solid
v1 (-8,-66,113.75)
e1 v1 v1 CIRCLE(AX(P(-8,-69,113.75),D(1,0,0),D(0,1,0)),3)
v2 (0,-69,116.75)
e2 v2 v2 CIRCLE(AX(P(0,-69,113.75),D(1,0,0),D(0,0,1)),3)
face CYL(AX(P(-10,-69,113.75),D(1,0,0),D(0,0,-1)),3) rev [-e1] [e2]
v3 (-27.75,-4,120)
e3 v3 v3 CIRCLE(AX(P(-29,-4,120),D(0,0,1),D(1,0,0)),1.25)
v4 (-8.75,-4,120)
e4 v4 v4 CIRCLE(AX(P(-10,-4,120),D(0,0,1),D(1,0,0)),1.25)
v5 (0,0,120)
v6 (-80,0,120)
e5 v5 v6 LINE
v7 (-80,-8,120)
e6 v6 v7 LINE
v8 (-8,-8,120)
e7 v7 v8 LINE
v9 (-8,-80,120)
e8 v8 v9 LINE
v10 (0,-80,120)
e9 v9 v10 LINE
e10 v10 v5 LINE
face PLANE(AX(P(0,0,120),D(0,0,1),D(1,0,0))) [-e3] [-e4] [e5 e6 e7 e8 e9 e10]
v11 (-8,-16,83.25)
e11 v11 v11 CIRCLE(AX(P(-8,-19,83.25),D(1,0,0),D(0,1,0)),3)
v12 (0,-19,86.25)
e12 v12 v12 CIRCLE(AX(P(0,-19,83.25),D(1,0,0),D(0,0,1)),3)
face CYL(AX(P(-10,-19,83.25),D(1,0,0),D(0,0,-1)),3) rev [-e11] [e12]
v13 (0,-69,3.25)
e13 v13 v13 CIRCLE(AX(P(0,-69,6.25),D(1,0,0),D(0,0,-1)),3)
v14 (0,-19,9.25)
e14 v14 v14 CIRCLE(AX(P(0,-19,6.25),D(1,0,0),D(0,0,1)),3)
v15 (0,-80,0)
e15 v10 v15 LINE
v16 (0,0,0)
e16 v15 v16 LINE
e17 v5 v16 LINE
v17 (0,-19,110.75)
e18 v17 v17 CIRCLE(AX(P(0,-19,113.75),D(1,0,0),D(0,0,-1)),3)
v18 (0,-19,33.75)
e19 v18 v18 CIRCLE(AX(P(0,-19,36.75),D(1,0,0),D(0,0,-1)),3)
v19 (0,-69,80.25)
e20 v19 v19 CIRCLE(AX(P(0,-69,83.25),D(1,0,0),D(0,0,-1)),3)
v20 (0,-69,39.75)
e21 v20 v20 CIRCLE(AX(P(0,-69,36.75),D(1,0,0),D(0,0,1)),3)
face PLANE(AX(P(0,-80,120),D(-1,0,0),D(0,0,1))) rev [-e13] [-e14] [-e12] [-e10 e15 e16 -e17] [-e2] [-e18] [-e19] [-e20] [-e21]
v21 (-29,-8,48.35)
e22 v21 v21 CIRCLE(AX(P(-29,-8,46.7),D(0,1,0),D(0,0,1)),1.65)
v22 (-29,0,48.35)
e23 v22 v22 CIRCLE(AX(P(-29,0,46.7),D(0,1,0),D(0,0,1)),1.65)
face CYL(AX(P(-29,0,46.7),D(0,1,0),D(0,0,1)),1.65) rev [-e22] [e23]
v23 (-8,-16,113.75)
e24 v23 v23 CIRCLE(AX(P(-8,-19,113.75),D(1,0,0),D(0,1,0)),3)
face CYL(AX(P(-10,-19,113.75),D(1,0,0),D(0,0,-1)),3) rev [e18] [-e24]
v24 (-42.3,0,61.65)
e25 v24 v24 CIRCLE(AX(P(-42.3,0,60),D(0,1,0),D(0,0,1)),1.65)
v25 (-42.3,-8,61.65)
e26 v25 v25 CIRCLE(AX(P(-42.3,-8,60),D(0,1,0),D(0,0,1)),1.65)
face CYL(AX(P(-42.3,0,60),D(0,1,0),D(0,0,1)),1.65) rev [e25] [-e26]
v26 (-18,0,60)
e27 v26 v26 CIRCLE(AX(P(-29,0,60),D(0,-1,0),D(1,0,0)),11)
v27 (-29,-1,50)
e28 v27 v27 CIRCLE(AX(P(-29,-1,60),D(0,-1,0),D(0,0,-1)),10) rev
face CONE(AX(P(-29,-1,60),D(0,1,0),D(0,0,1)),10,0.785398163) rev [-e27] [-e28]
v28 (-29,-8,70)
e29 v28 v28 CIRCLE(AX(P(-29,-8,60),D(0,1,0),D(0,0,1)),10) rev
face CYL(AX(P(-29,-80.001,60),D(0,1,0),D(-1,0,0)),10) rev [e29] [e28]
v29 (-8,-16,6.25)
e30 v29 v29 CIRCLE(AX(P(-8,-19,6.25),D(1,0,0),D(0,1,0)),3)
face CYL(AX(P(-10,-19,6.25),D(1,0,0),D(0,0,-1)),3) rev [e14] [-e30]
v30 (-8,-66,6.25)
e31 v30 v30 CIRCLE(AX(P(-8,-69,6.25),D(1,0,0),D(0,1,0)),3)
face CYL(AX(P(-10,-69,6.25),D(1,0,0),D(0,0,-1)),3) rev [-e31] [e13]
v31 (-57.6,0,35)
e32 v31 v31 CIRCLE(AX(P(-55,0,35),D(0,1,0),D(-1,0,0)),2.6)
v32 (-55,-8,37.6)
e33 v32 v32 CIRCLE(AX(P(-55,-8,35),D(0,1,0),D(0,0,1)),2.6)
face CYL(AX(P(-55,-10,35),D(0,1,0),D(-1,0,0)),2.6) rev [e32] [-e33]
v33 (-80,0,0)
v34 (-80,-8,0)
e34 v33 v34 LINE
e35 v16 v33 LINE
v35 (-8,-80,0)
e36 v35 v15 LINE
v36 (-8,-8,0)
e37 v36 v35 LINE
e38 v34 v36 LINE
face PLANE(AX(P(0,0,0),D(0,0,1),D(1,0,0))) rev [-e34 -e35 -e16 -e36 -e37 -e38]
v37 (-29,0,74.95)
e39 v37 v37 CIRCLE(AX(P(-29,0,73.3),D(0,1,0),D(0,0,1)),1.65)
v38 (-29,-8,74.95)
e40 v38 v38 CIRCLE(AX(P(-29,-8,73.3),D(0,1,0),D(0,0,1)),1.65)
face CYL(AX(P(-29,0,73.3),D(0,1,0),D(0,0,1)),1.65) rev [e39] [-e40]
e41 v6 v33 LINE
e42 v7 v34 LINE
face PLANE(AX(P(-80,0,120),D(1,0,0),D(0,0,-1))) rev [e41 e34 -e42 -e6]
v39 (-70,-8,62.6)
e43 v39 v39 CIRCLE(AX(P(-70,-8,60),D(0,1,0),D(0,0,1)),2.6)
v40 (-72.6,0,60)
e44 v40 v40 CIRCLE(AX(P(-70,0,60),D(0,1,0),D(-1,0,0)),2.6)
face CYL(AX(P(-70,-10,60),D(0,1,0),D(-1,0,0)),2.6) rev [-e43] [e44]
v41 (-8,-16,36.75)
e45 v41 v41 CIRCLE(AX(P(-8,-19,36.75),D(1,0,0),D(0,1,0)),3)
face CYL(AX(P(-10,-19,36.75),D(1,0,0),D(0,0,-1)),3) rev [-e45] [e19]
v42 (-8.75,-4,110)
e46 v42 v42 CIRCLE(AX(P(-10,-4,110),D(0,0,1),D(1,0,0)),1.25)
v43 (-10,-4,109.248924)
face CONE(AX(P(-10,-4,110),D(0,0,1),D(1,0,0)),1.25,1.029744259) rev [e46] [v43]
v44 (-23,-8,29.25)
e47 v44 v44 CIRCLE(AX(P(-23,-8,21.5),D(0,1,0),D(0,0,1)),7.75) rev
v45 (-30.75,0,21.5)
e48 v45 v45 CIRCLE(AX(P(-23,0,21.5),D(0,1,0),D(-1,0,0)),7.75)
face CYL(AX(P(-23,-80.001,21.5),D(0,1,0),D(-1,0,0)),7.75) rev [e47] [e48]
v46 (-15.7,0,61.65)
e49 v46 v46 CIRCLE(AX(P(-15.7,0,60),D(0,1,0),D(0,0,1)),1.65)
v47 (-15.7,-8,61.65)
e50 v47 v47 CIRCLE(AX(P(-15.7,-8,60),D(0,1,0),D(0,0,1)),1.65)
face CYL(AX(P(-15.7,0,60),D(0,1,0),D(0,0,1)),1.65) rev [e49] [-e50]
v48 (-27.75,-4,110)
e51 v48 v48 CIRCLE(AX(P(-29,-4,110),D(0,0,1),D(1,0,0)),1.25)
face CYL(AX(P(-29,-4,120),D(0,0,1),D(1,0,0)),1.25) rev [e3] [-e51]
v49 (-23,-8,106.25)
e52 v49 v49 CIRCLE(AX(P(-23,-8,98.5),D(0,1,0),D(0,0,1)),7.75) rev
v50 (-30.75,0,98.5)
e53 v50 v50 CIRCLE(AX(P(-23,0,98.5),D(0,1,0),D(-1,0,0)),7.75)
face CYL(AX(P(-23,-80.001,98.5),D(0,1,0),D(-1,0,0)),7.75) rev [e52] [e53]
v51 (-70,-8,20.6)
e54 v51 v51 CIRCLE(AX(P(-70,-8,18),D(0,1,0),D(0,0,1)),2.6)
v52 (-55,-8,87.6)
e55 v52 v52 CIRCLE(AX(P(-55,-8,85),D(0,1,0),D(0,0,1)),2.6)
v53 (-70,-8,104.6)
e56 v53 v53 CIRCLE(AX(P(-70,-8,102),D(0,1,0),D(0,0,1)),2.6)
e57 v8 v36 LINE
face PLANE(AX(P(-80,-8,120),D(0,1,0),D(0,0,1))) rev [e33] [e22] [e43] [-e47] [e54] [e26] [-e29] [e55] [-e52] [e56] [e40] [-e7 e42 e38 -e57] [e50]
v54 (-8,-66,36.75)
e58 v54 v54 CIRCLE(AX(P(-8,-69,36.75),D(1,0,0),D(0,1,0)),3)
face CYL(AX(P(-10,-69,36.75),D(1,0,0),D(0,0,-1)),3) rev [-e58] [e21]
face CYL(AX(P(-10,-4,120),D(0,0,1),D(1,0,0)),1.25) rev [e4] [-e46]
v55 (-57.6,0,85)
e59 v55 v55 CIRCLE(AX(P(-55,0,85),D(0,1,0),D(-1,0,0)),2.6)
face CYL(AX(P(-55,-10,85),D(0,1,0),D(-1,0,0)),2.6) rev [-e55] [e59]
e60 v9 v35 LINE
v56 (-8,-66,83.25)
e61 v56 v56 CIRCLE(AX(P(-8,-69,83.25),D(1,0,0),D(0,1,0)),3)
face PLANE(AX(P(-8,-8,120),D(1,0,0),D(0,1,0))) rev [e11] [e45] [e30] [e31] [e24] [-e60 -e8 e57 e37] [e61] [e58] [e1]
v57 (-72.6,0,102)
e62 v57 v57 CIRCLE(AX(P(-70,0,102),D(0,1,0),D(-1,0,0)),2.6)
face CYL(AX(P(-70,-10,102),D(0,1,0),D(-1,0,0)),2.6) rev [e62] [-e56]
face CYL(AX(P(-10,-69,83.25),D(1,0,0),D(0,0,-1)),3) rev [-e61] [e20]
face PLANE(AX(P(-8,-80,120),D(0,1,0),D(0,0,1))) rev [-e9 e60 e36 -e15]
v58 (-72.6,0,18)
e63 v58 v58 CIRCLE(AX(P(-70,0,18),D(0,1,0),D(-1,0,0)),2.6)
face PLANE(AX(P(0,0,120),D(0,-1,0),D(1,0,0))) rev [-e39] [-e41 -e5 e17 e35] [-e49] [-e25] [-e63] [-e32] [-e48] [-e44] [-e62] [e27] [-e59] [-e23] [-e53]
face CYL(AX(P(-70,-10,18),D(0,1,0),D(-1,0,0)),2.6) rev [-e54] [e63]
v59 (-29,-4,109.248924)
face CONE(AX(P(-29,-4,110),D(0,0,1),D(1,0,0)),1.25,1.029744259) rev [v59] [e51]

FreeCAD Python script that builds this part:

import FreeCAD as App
import Part
import Sketcher


def edges_at(feature, points):
    """Names of the edges that pass closest to the given points."""
    edges = feature.Shape.Edges
    near = lambda p: min(range(len(edges)), key=lambda i: edges[i].distToShape(Part.Vertex(*p))[0])
    return sorted({f"Edge{near(p) + 1}" for p in points})


def add_polygon(sketch, points):
    """Adds a closed chain of lines whose ends are joined by coincident constraints."""
    first, n = sketch.GeometryCount, len(points)
    for a, b in zip(points, points[1:] + points[:1]):
        sketch.addGeometry(Part.LineSegment(App.Vector(*a, 0), App.Vector(*b, 0)), False)
    for i in range(n):
        sketch.addConstraint(Sketcher.Constraint("Coincident", first + i, 2, first + (i + 1) % n, 1))

doc = App.newDocument("Part")
body = doc.addObject("PartDesign::Body", "Body")

# Sketch on XY plane
sketch1 = doc.addObject("Sketcher::SketchObject", "Sketch")
body.addObject(sketch1)
sketch1.AttachmentSupport = (doc.XY_Plane, [""])
sketch1.MapMode = "FlatFace"
add_polygon(sketch1, [(0, 0), (-80, 0), (-80, -8), (-8, -8), (-8, -80), (0, -80)])  # lines 0-5
sketch1.addConstraint([
    Sketcher.Constraint("Horizontal", 0),
    Sketcher.Constraint("Vertical", 1),
    Sketcher.Constraint("Horizontal", 2),
    Sketcher.Constraint("Vertical", 3),
    Sketcher.Constraint("Horizontal", 4),
    Sketcher.Constraint("Vertical", 5),
    Sketcher.Constraint("Coincident", 5, 2, -1, 1),
    Sketcher.Constraint("Equal", 4, 1),
    Sketcher.Constraint("Equal", 2, 3),
    Sketcher.Constraint("DistanceX", 0, 2, 0, 1, 80.0),
    Sketcher.Constraint("DistanceX", 2, 1, 2, 2, 72.0),
])
pad1 = doc.addObject("PartDesign::Pad", "Pad")
body.addObject(pad1)
pad1.Profile = sketch1
pad1.Length = 120

# Sketch on XZ plane
sketch2 = doc.addObject("Sketcher::SketchObject", "Sketch001")
body.addObject(sketch2)
sketch2.AttachmentSupport = (doc.XZ_Plane, [""])
sketch2.MapMode = "FlatFace"
sketch2.addGeometry(Part.Circle(App.Vector(-23, 22, 0), App.Vector(0, 0, 1), 8), False)
sketch2.addConstraint([
    Sketcher.Constraint("Diameter", 0, 15.5),
    Sketcher.Constraint("DistanceX", 0, 3, -1, 1, 23.0),
    Sketcher.Constraint("DistanceY", -1, 1, 0, 3, 21.5),
])
pocket1 = doc.addObject("PartDesign::Pocket", "Pocket")
body.addObject(pocket1)
pocket1.Profile = sketch2
pocket1.Type = "UpToFirst"
pocket1.Reversed = True

# Sketch on XZ plane
sketch3 = doc.addObject("Sketcher::SketchObject", "Sketch002")
body.addObject(sketch3)
sketch3.AttachmentSupport = (doc.XZ_Plane, [""])
sketch3.MapMode = "FlatFace"
sketch3.addGeometry(Part.Circle(App.Vector(-23, 98, 0), App.Vector(0, 0, 1), 8), False)
sketch3.addConstraint([
    Sketcher.Constraint("Diameter", 0, 15.5),
    Sketcher.Constraint("DistanceX", 0, 3, -1, 1, 23.0),
    Sketcher.Constraint("DistanceY", -1, 1, 0, 3, 98.5),
])
pocket2 = doc.addObject("PartDesign::Pocket", "Pocket001")
body.addObject(pocket2)
pocket2.Profile = sketch3
pocket2.Type = "UpToFirst"
pocket2.Reversed = True

# Sketch on XZ plane
sketch4 = doc.addObject("Sketcher::SketchObject", "Sketch003")
body.addObject(sketch4)
sketch4.AttachmentSupport = (doc.XZ_Plane, [""])
sketch4.MapMode = "FlatFace"
sketch4.addGeometry(Part.Circle(App.Vector(-29, 60, 0), App.Vector(0, 0, 1), 10), False)
sketch4.addConstraint([
    Sketcher.Constraint("Diameter", 0, 20.0),
    Sketcher.Constraint("DistanceX", 0, 3, -1, 1, 29.0),
    Sketcher.Constraint("DistanceY", -1, 1, 0, 3, 60.0),
])
pocket3 = doc.addObject("PartDesign::Pocket", "Pocket002")
body.addObject(pocket3)
pocket3.Profile = sketch4
pocket3.Type = "UpToFirst"
pocket3.Reversed = True

# Sketch on XZ plane
sketch5 = doc.addObject("Sketcher::SketchObject", "Sketch004")
body.addObject(sketch5)
sketch5.AttachmentSupport = (doc.XZ_Plane, [""])
sketch5.MapMode = "FlatFace"
sketch5.addGeometry([
    Part.Circle(App.Vector(-29, 46.7, 0), App.Vector(0, 0, 1), 1.6),  # 0
    Part.Circle(App.Vector(-42.3, 60, 0), App.Vector(0, 0, 1), 1.6),  # 1
    Part.Circle(App.Vector(-29, 73.3, 0), App.Vector(0, 0, 1), 1.6),  # 2
    Part.Circle(App.Vector(-15.7, 60, 0), App.Vector(0, 0, 1), 1.6),  # 3
    Part.Circle(App.Vector(-29, 60, 0), App.Vector(0, 0, 1), 1.6),  # 4
], False)
sketch5.addConstraint([
    Sketcher.Constraint("Equal", 0, 1),
    Sketcher.Constraint("Equal", 1, 2),
    Sketcher.Constraint("Equal", 2, 3),
    Sketcher.Constraint("Equal", 3, 4),
    Sketcher.Constraint("Horizontal", 1, 3, 3, 3),
    Sketcher.Constraint("Horizontal", 3, 3, 4, 3),
    Sketcher.Constraint("Vertical", 0, 3, 2, 3),
    Sketcher.Constraint("Vertical", 2, 3, 4, 3),
    Sketcher.Constraint("Diameter", 0, 3.3),
    Sketcher.Constraint("DistanceX", 0, 3, -1, 1, 29.0),
    Sketcher.Constraint("DistanceY", -1, 1, 1, 3, 60.0),
    Sketcher.Constraint("DistanceY", -1, 1, 0, 3, 46.7),
    Sketcher.Constraint("DistanceX", 1, 3, -1, 1, 42.3),
    Sketcher.Constraint("DistanceY", -1, 1, 2, 3, 73.3),
    Sketcher.Constraint("DistanceX", 3, 3, -1, 1, 15.7),
])
doc.recompute()
hole = doc.addObject("PartDesign::Hole", "Hole")
body.addObject(hole)
hole.Profile = sketch5
hole.ThreadType = "None"
hole.Diameter = 3.3
hole.DepthType = "ThroughAll"
hole.Reversed = True

# Sketch on YZ plane
sketch6 = doc.addObject("Sketcher::SketchObject", "Sketch005")
body.addObject(sketch6)
sketch6.AttachmentSupport = (doc.YZ_Plane, [""])
sketch6.MapMode = "FlatFace"
sketch6.addGeometry([
    Part.Circle(App.Vector(-19, 113.8, 0), App.Vector(0, 0, 1), 3),  # 0
    Part.Circle(App.Vector(-19, 83.2, 0), App.Vector(0, 0, 1), 3),  # 1
    Part.Circle(App.Vector(-19, 36.8, 0), App.Vector(0, 0, 1), 3),  # 2
    Part.Circle(App.Vector(-19, 6.2, 0), App.Vector(0, 0, 1), 3),  # 3
    Part.Circle(App.Vector(-69, 83.2, 0), App.Vector(0, 0, 1), 3),  # 4
    Part.Circle(App.Vector(-69, 113.8, 0), App.Vector(0, 0, 1), 3),  # 5
    Part.Circle(App.Vector(-69, 6.2, 0), App.Vector(0, 0, 1), 3),  # 6
    Part.Circle(App.Vector(-69, 36.8, 0), App.Vector(0, 0, 1), 3),  # 7
], False)
sketch6.addConstraint([
    Sketcher.Constraint("Equal", 0, 1),
    Sketcher.Constraint("Equal", 1, 2),
    Sketcher.Constraint("Equal", 2, 3),
    Sketcher.Constraint("Equal", 3, 4),
    Sketcher.Constraint("Equal", 4, 5),
    Sketcher.Constraint("Equal", 5, 6),
    Sketcher.Constraint("Equal", 6, 7),
    Sketcher.Constraint("Horizontal", 1, 3, 4, 3),
    Sketcher.Constraint("Horizontal", 0, 3, 5, 3),
    Sketcher.Constraint("Horizontal", 3, 3, 6, 3),
    Sketcher.Constraint("Horizontal", 2, 3, 7, 3),
    Sketcher.Constraint("Vertical", 0, 3, 1, 3),
    Sketcher.Constraint("Vertical", 1, 3, 2, 3),
    Sketcher.Constraint("Vertical", 2, 3, 3, 3),
    Sketcher.Constraint("Vertical", 4, 3, 5, 3),
    Sketcher.Constraint("Vertical", 5, 3, 6, 3),
    Sketcher.Constraint("Vertical", 6, 3, 7, 3),
    Sketcher.Constraint("Diameter", 0, 6.0),
    Sketcher.Constraint("DistanceX", 0, 3, -1, 1, 19.0),
    Sketcher.Constraint("DistanceX", 4, 3, -1, 1, 69.0),
    Sketcher.Constraint("DistanceY", 2, 3, 0, 3, 77.0),
    Sketcher.Constraint("DistanceY", 3, 3, 1, 3, 77.0),
    Sketcher.Constraint("DistanceY", 1, 3, 0, 3, 30.5),
    Sketcher.Constraint("DistanceY", -1, 1, 0, 3, 113.75),
])
pocket4 = doc.addObject("PartDesign::Pocket", "Pocket003")
body.addObject(pocket4)
pocket4.Profile = sketch6
pocket4.Length = 10

# Sketch on XZ plane
sketch7 = doc.addObject("Sketcher::SketchObject", "Sketch006")
body.addObject(sketch7)
sketch7.AttachmentSupport = (doc.XZ_Plane, [""])
sketch7.MapMode = "FlatFace"
sketch7.addGeometry([
    Part.Circle(App.Vector(-70, 18, 0), App.Vector(0, 0, 1), 2.6),  # 0
    Part.Circle(App.Vector(-70, 60, 0), App.Vector(0, 0, 1), 2.6),  # 1
    Part.Circle(App.Vector(-70, 102, 0), App.Vector(0, 0, 1), 2.6),  # 2
    Part.Circle(App.Vector(-55, 35, 0), App.Vector(0, 0, 1), 2.6),  # 3
    Part.Circle(App.Vector(-55, 85, 0), App.Vector(0, 0, 1), 2.6),  # 4
], False)
sketch7.addConstraint([
    Sketcher.Constraint("Equal", 0, 1),
    Sketcher.Constraint("Equal", 1, 2),
    Sketcher.Constraint("Equal", 2, 3),
    Sketcher.Constraint("Equal", 3, 4),
    Sketcher.Constraint("Vertical", 0, 3, 1, 3),
    Sketcher.Constraint("Vertical", 1, 3, 2, 3),
    Sketcher.Constraint("Vertical", 3, 3, 4, 3),
    Sketcher.Constraint("Diameter", 0, 5.2),
    Sketcher.Constraint("DistanceX", 0, 3, -1, 1, 70.0),
    Sketcher.Constraint("DistanceY", -1, 1, 0, 3, 18.0),
    Sketcher.Constraint("DistanceY", -1, 1, 1, 3, 60.0),
    Sketcher.Constraint("DistanceY", -1, 1, 2, 3, 102.0),
    Sketcher.Constraint("DistanceX", 3, 3, -1, 1, 55.0),
    Sketcher.Constraint("DistanceY", -1, 1, 3, 3, 35.0),
    Sketcher.Constraint("DistanceY", -1, 1, 4, 3, 85.0),
])
pocket5 = doc.addObject("PartDesign::Pocket", "Pocket004")
body.addObject(pocket5)
pocket5.Profile = sketch7
pocket5.Length = 10
pocket5.Reversed = True
doc.recompute()

chamfer = doc.addObject("PartDesign::Chamfer", "Chamfer")
body.addObject(chamfer)
chamfer.Base = (pocket5, edges_at(pocket5, [(-39, 0, 60)]))
chamfer.Size = 1

# Sketch on XY plane
sketch8 = doc.addObject("Sketcher::SketchObject", "Sketch007")
body.addObject(sketch8)
sketch8.AttachmentSupport = (doc.XY_Plane, [""])
sketch8.MapMode = "FlatFace"
sketch8.AttachmentOffset = App.Placement(App.Vector(0, 0, 120), App.Rotation())
sketch8.addGeometry([
    Part.Circle(App.Vector(-10, -4, 0), App.Vector(0, 0, 1), 1.2),
    Part.Circle(App.Vector(-29, -4, 0), App.Vector(0, 0, 1), 1.2),
], False)
sketch8.addConstraint([
    Sketcher.Constraint("Equal", 0, 1),
    Sketcher.Constraint("Horizontal", 0, 3, 1, 3),
    Sketcher.Constraint("Diameter", 0, 2.5),
    Sketcher.Constraint("DistanceX", 0, 3, -1, 1, 10.0),
    Sketcher.Constraint("DistanceY", 0, 3, -1, 1, 4.0),
    Sketcher.Constraint("DistanceX", 1, 3, -1, 1, 29.0),
])
doc.recompute()
hole2 = doc.addObject("PartDesign::Hole", "Hole001")
body.addObject(hole2)
hole2.Profile = sketch8
hole2.ThreadType = "None"
hole2.Diameter = 2.5
hole2.DepthType = "Dimension"
hole2.Depth = 10
hole2.DrillPoint = "Angled"
hole2.DrillPointAngle = 118

doc.recompute()
